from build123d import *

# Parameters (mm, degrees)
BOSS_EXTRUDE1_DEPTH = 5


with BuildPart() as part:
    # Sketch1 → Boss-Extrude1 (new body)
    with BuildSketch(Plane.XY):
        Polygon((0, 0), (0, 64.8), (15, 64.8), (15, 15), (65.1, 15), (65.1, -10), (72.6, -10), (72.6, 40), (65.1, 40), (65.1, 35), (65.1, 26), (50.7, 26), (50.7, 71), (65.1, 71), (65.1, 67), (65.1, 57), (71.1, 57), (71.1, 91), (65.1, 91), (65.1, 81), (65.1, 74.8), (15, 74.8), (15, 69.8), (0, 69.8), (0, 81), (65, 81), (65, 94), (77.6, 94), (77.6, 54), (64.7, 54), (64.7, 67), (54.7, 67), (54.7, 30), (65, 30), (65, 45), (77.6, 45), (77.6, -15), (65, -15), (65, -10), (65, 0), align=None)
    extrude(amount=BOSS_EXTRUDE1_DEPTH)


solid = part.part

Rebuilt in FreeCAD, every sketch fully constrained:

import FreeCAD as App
import Part
import Sketcher
from FreeCAD import Vector


def add_polygon(sketch, points):
    """Adds a closed chain of lines whose ends are joined by coincident constraints."""
    first, n = sketch.GeometryCount, len(points)
    for a, b in zip(points, points[1:] + points[:1]):
        sketch.addGeometry(Part.LineSegment(App.Vector(*a, 0), App.Vector(*b, 0)), False)
    for i in range(n):
        sketch.addConstraint(Sketcher.Constraint("Coincident", first + i, 2, first + (i + 1) % n, 1))

doc = App.newDocument("Part")
body = doc.addObject("PartDesign::Body", "Body")

# Sketch on XY plane
sketch1 = body.newObject("Sketcher::SketchObject", "Sketch")
sketch1.AttachmentSupport = (doc.getObject("XY_Plane"), [""])
sketch1.MapMode = "FlatFace"
add_polygon(sketch1, [(0, 65), (0, 0), (65, 0), (65, -15), (78, -15), (78, 45), (65, 45), (65, 30), (55, 30), (55, 67), (65, 67), (65, 54), (78, 54), (78, 94), (65, 94), (65, 81), (0, 81), (0, 70), (15, 70), (15, 75), (65, 75), (65, 91), (71, 91), (71, 57), (65, 57), (65, 71), (51, 71), (51, 26), (65, 26), (65, 40), (73, 40), (73, -10), (65, -10), (65, 15), (15, 15), (15, 65)])  # lines 0-35
sketch1.addConstraint([
    Sketcher.Constraint("Vertical", 0),
    Sketcher.Constraint("Horizontal", 1),
    Sketcher.Constraint("Vertical", 2),
    Sketcher.Constraint("Horizontal", 3),
    Sketcher.Constraint("Vertical", 4),
    Sketcher.Constraint("Horizontal", 5),
    Sketcher.Constraint("Vertical", 6),
    Sketcher.Constraint("Horizontal", 7),
    Sketcher.Constraint("Vertical", 8),
    Sketcher.Constraint("Horizontal", 9),
    Sketcher.Constraint("Vertical", 10),
    Sketcher.Constraint("Horizontal", 11),
    Sketcher.Constraint("Vertical", 12),
    Sketcher.Constraint("Horizontal", 13),
    Sketcher.Constraint("Vertical", 14),
    Sketcher.Constraint("Horizontal", 15),
    Sketcher.Constraint("Vertical", 16),
    Sketcher.Constraint("Horizontal", 17),
    Sketcher.Constraint("Vertical", 18),
    Sketcher.Constraint("Horizontal", 19),
    Sketcher.Constraint("Vertical", 20),
    Sketcher.Constraint("Horizontal", 21),
    Sketcher.Constraint("Vertical", 22),
    Sketcher.Constraint("Horizontal", 23),
    Sketcher.Constraint("Vertical", 24),
    Sketcher.Constraint("Horizontal", 25),
    Sketcher.Constraint("Vertical", 26),
    Sketcher.Constraint("Horizontal", 27),
    Sketcher.Constraint("Vertical", 28),
    Sketcher.Constraint("Horizontal", 29),
    Sketcher.Constraint("Vertical", 30),
    Sketcher.Constraint("Horizontal", 31),
    Sketcher.Constraint("Vertical", 32),
    Sketcher.Constraint("Horizontal", 33),
    Sketcher.Constraint("Vertical", 34),
    Sketcher.Constraint("Horizontal", 35),
    Sketcher.Constraint("Coincident", 0, 2, -1, 1),
    Sketcher.Constraint("PointOnObject", 15, 2, -2),
    Sketcher.Constraint("Vertical", 2, 2, 5, 2),
    Sketcher.Constraint("Vertical", 4, 2, 11, 2),
    Sketcher.Constraint("Vertical", 6, 2, 13, 2),
    Sketcher.Constraint("Vertical", 20, 2, 23, 2),
    Sketcher.Constraint("Vertical", 24, 2, 27, 2),
    Sketcher.Constraint("Vertical", 28, 2, 31, 2),
    Sketcher.Constraint("Vertical", 18, 2, 33, 2),
    Sketcher.Constraint("Equal", 35, 2),
    Sketcher.Constraint("Equal", 2, 6),
    Sketcher.Constraint("Equal", 10, 14),
    Sketcher.Constraint("Equal", 24, 28),
    Sketcher.Constraint("DistanceX", 1, 1, 1, 2, 65.0),
    Sketcher.Constraint("DistanceX", 9, 1, 9, 2, 10.0),
    Sketcher.Constraint("DistanceX", 17, 1, 17, 2, 15.0),
    Sketcher.Constraint("DistanceX", 21, 1, 21, 2, 6.0),
    Sketcher.Constraint("DistanceY", 4, 1, 4, 2, 60.0),
    Sketcher.Constraint("DistanceY", 8, 1, 8, 2, 37.0),
    Sketcher.Constraint("DistanceY", 10, 2, 10, 1, 13.0),
    Sketcher.Constraint("DistanceY", 12, 1, 12, 2, 40.0),
    Sketcher.Constraint("DistanceY", 18, 1, 18, 2, 5.0),
    Sketcher.Constraint("DistanceY", 22, 2, 22, 1, 34.0),
    Sketcher.Constraint("DistanceY", 24, 1, 24, 2, 14.0),
    Sketcher.Constraint("DistanceY", 26, 2, 26, 1, 45.0),
    Sketcher.Constraint("DistanceY", 30, 2, 30, 1, 50.0),
    Sketcher.Constraint("DistanceY", 32, 1, 32, 2, 25.0),
    Sketcher.Constraint("DistanceX", 3, 1, 3, 2, 12.6),
    Sketcher.Constraint("DistanceX", 7, 2, 7, 1, 10.3),
    Sketcher.Constraint("DistanceX", 19, 1, 19, 2, 50.1),
    Sketcher.Constraint("DistanceX", 25, 2, 25, 1, 14.4),
    Sketcher.Constraint("DistanceX", 29, 1, 29, 2, 7.5),
    Sketcher.Constraint("DistanceY", 0, 2, 0, 1, 64.8),
    Sketcher.Constraint("DistanceY", 16, 2, 16, 1, 11.2),
    Sketcher.Constraint("DistanceY", 20, 1, 20, 2, 16.2),
])
pad1 = body.newObject("PartDesign::Pad", "Pad")
pad1.Profile = sketch1
pad1.Length = 5

doc.recompute()
